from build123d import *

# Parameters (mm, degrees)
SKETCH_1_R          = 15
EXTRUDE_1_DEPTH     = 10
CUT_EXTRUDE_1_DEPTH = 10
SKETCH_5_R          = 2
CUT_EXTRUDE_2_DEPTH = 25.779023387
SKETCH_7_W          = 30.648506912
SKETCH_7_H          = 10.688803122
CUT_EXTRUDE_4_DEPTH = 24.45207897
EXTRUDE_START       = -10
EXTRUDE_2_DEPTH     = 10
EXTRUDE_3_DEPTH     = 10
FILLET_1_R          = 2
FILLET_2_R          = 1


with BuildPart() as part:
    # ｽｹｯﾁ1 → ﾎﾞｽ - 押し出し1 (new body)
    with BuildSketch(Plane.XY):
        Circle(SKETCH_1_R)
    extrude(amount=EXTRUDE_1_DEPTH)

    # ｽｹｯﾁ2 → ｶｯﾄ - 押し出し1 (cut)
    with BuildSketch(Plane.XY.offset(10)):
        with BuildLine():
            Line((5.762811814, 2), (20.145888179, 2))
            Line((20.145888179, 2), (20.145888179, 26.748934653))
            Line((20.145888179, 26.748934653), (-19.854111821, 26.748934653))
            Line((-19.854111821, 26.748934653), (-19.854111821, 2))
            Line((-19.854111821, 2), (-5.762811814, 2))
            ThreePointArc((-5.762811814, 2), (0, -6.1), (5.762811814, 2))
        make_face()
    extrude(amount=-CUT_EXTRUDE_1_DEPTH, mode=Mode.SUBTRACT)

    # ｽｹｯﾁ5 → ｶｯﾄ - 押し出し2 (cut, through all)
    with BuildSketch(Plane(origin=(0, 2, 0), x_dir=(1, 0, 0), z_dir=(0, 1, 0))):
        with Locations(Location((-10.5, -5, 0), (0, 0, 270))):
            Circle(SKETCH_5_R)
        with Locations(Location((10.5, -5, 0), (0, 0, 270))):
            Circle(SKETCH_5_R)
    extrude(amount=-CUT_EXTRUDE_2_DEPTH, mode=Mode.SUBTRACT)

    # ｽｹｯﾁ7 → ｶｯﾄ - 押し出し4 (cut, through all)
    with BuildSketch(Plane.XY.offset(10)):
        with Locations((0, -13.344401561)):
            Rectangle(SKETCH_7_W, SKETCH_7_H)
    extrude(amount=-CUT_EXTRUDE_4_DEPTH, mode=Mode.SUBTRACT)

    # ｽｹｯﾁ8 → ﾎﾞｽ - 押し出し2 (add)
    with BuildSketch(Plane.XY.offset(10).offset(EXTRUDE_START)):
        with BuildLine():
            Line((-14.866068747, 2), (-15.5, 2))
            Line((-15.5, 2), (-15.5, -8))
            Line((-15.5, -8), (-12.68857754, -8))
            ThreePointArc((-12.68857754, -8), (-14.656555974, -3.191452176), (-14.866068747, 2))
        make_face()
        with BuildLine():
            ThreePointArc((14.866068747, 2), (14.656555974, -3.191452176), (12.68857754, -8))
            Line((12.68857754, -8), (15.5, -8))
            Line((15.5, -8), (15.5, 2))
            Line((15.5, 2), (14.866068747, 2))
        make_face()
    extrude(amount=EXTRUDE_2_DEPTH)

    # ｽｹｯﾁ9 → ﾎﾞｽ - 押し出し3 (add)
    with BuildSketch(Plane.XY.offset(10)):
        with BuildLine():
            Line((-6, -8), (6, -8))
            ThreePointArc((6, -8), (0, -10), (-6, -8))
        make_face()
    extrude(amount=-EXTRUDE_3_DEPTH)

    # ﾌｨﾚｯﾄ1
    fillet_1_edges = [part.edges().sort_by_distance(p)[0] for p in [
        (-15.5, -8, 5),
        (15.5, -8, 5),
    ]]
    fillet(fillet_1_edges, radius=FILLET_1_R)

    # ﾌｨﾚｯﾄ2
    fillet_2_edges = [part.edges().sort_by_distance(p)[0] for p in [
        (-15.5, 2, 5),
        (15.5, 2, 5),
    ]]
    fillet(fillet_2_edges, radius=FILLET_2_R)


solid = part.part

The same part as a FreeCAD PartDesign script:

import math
import FreeCAD as App
import Part
import Sketcher

V = App.Vector


def edges_at(feature, points):
    """Names of the edges that pass closest to the given points."""
    edges = feature.Shape.Edges
    near = lambda p: min(range(len(edges)), key=lambda i: edges[i].distToShape(Part.Vertex(*p))[0])
    return sorted({f"Edge{near(p) + 1}" for p in points})

doc = App.newDocument("Part")
body = doc.addObject("PartDesign::Body", "Body")

# Sketch on XY plane
sketch1 = body.newObject("Sketcher::SketchObject", "Sketch")
sketch1.AttachmentSupport = (doc.getObject("XY_Plane"), [""])
sketch1.MapMode = "FlatFace"
sketch1.addGeometry(Part.Circle(V(0, 0, 0), V(0, 0, 1), 15), False)
sketch1.addConstraint(Sketcher.Constraint("Coincident", 0, 3, -1, 1))
sketch1.addConstraint(Sketcher.Constraint("Diameter", 0, 30.0))
pad1 = body.newObject("PartDesign::Pad", "Pad")
pad1.Profile = sketch1
pad1.Length = 10

# Sketch on XY plane
sketch2 = body.newObject("Sketcher::SketchObject", "Sketch001")
sketch2.AttachmentSupport = (doc.getObject("XY_Plane"), [""])
sketch2.MapMode = "FlatFace"
sketch2.AttachmentOffset = App.Placement(V(0, 0, 10), App.Rotation())
sketch2.addGeometry(Part.LineSegment(V(6, 2, 0), V(20, 2, 0)), False)
sketch2.addGeometry(Part.LineSegment(V(20, 2, 0), V(20, 27, 0)), False)
sketch2.addGeometry(Part.LineSegment(V(20, 27, 0), V(-20, 27, 0)), False)
sketch2.addGeometry(Part.LineSegment(V(-20, 27, 0), V(-20, 2, 0)), False)
sketch2.addGeometry(Part.LineSegment(V(-20, 2, 0), V(-6, 2, 0)), False)
sketch2.addGeometry(Part.ArcOfCircle(Part.Circle(V(0, 0, 0), V(0, 0, 1), 6), math.radians(161), math.radians(379)), False)
sketch2.addConstraint(Sketcher.Constraint("Coincident", 0, 2, 1, 1))
sketch2.addConstraint(Sketcher.Constraint("Coincident", 1, 2, 2, 1))
sketch2.addConstraint(Sketcher.Constraint("Coincident", 2, 2, 3, 1))
sketch2.addConstraint(Sketcher.Constraint("Coincident", 3, 2, 4, 1))
sketch2.addConstraint(Sketcher.Constraint("Coincident", 4, 2, 5, 1))
sketch2.addConstraint(Sketcher.Constraint("Coincident", 5, 2, 0, 1))
sketch2.addConstraint(Sketcher.Constraint("Horizontal", 0))
sketch2.addConstraint(Sketcher.Constraint("Vertical", 1))
sketch2.addConstraint(Sketcher.Constraint("Horizontal", 2))
sketch2.addConstraint(Sketcher.Constraint("Vertical", 3))
sketch2.addConstraint(Sketcher.Constraint("Horizontal", 4))
sketch2.addConstraint(Sketcher.Constraint("Coincident", 5, 3, -1, 1))
sketch2.addConstraint(Sketcher.Constraint("Horizontal", 0, 2, 3, 2))
sketch2.addConstraint(Sketcher.Constraint("Radius", 5, 6.1))
sketch2.addConstraint(Sketcher.Constraint("DistanceX", 2, 2, 2, 1, 40.0))
sketch2.addConstraint(Sketcher.Constraint("DistanceY", -1, 1, 0, 2, 2.0))
sketch2.addConstraint(Sketcher.Constraint("DistanceX", 4, 1, 4, 2, 14.0913))
sketch2.addConstraint(Sketcher.Constraint("DistanceY", 1, 1, 1, 2, 24.748935))
pocket1 = body.newObject("PartDesign::Pocket", "Pocket")
pocket1.Profile = sketch2
pocket1.Length = 10

# Sketch on XZ plane
sketch3 = body.newObject("Sketcher::SketchObject", "Sketch002")
sketch3.AttachmentSupport = (doc.getObject("XZ_Plane"), [""])
sketch3.MapMode = "FlatFace"
sketch3.AttachmentOffset = App.Placement(V(0, 0, -2), App.Rotation())
sketch3.addGeometry(Part.Circle(V(-10.5, 5, 0), V(0, 0, 1), 2), False)
sketch3.addGeometry(Part.Circle(V(10.5, 5, 0), V(0, 0, 1), 2), False)
sketch3.addConstraint(Sketcher.Constraint("Equal", 0, 1))
sketch3.addConstraint(Sketcher.Constraint("Symmetric", 0, 3, 1, 3, -2))
sketch3.addConstraint(Sketcher.Constraint("Diameter", 0, 4.0))
sketch3.addConstraint(Sketcher.Constraint("DistanceY", -1, 1, 0, 3, 5.0))
sketch3.addConstraint(Sketcher.Constraint("DistanceX", 0, 3, 1, 3, 21.0))
pocket2 = body.newObject("PartDesign::Pocket", "Pocket001")
pocket2.Profile = sketch3
pocket2.Type = "ThroughAll"
pocket2.Reversed = True

# Sketch on XY plane
sketch4 = body.newObject("Sketcher::SketchObject", "Sketch003")
sketch4.AttachmentSupport = (doc.getObject("XY_Plane"), [""])
sketch4.MapMode = "FlatFace"
sketch4.AttachmentOffset = App.Placement(V(0, 0, 10), App.Rotation())
sketch4.addGeometry(Part.LineSegment(V(-15, -8, 0), V(-15, -19, 0)), False)
sketch4.addGeometry(Part.LineSegment(V(-15, -19, 0), V(15, -19, 0)), False)
sketch4.addGeometry(Part.LineSegment(V(15, -19, 0), V(15, -8, 0)), False)
sketch4.addGeometry(Part.LineSegment(V(15, -8, 0), V(-15, -8, 0)), False)
sketch4.addConstraint(Sketcher.Constraint("Coincident", 0, 2, 1, 1))
sketch4.addConstraint(Sketcher.Constraint("Coincident", 1, 2, 2, 1))
sketch4.addConstraint(Sketcher.Constraint("Coincident", 2, 2, 3, 1))
sketch4.addConstraint(Sketcher.Constraint("Coincident", 3, 2, 0, 1))
sketch4.addConstraint(Sketcher.Constraint("Vertical", 0))
sketch4.addConstraint(Sketcher.Constraint("Horizontal", 1))
sketch4.addConstraint(Sketcher.Constraint("Vertical", 2))
sketch4.addConstraint(Sketcher.Constraint("Horizontal", 3))
sketch4.addConstraint(Sketcher.Constraint("DistanceY", 2, 2, -1, 1, 8.0))
sketch4.addConstraint(Sketcher.Constraint("DistanceX", 1, 1, 1, 2, 30.648507))
sketch4.addConstraint(Sketcher.Constraint("DistanceY", 0, 2, 0, 1, 10.688803))
sketch4.addConstraint(Sketcher.Constraint("DistanceX", 0, 2, -1, 1, 15.324253))
pocket3 = body.newObject("PartDesign::Pocket", "Pocket002")
pocket3.Profile = sketch4
pocket3.Type = "ThroughAll"

# Sketch on XY plane
sketch5 = body.newObject("Sketcher::SketchObject", "Sketch004")
sketch5.AttachmentSupport = (doc.getObject("XY_Plane"), [""])
sketch5.MapMode = "FlatFace"
sketch5.addGeometry(Part.LineSegment(V(-14.9, 2, 0), V(-15.5, 2, 0)), False)
sketch5.addGeometry(Part.LineSegment(V(-15.5, 2, 0), V(-15.5, -8, 0)), False)
sketch5.addGeometry(Part.LineSegment(V(-15.5, -8, 0), V(-12.7, -8, 0)), False)
sketch5.addGeometry(Part.ArcOfCircle(Part.Circle(V(0, 0, 0), V(0, 0, 1), 15), math.radians(172), math.radians(212)), False)
sketch5.addGeometry(Part.ArcOfCircle(Part.Circle(V(0, 0, 0), V(0, 0, 1), 15), math.radians(-32), math.radians(8)), False)
sketch5.addGeometry(Part.LineSegment(V(12.7, -8, 0), V(15.5, -8, 0)), False)
sketch5.addGeometry(Part.LineSegment(V(15.5, -8, 0), V(15.5, 2, 0)), False)
sketch5.addGeometry(Part.LineSegment(V(15.5, 2, 0), V(14.9, 2, 0)), False)
sketch5.addConstraint(Sketcher.Constraint("Coincident", 0, 2, 1, 1))
sketch5.addConstraint(Sketcher.Constraint("Coincident", 1, 2, 2, 1))
sketch5.addConstraint(Sketcher.Constraint("Coincident", 2, 2, 3, 2))
sketch5.addConstraint(Sketcher.Constraint("Coincident", 3, 1, 0, 1))
sketch5.addConstraint(Sketcher.Constraint("Coincident", 4, 1, 5, 1))
sketch5.addConstraint(Sketcher.Constraint("Coincident", 5, 2, 6, 1))
sketch5.addConstraint(Sketcher.Constraint("Coincident", 6, 2, 7, 1))
sketch5.addConstraint(Sketcher.Constraint("Coincident", 7, 2, 4, 2))
sketch5.addConstraint(Sketcher.Constraint("Horizontal", 0))
sketch5.addConstraint(Sketcher.Constraint("Vertical", 1))
sketch5.addConstraint(Sketcher.Constraint("Horizontal", 2))
sketch5.addConstraint(Sketcher.Constraint("Horizontal", 5))
sketch5.addConstraint(Sketcher.Constraint("Vertical", 6))
sketch5.addConstraint(Sketcher.Constraint("Horizontal", 7))
sketch5.addConstraint(Sketcher.Constraint("Coincident", 3, 3, -1, 1))
sketch5.addConstraint(Sketcher.Constraint("Coincident", 4, 3, -1, 1))
sketch5.addConstraint(Sketcher.Constraint("Equal", 3, 4))
sketch5.addConstraint(Sketcher.Constraint("Symmetric", 1, 2, 5, 2, -2))
sketch5.addConstraint(Sketcher.Constraint("Horizontal", 3, 1, 6, 2))
sketch5.addConstraint(Sketcher.Constraint("Radius", 3, 15.0))
sketch5.addConstraint(Sketcher.Constraint("DistanceY", 1, 2, 1, 1, 10.0))
sketch5.addConstraint(Sketcher.Constraint("DistanceY", -1, 1, 0, 2, 2.0))
sketch5.addConstraint(Sketcher.Constraint("DistanceX", 1, 2, 5, 2, 31.0))
pad2 = body.newObject("PartDesign::Pad", "Pad001")
pad2.Profile = sketch5
pad2.Length = 10

# Sketch on XY plane
sketch6 = body.newObject("Sketcher::SketchObject", "Sketch005")
sketch6.AttachmentSupport = (doc.getObject("XY_Plane"), [""])
sketch6.MapMode = "FlatFace"
sketch6.AttachmentOffset = App.Placement(V(0, 0, 10), App.Rotation())
sketch6.addGeometry(Part.LineSegment(V(6, -8, 0), V(-6, -8, 0)), False)
sketch6.addGeometry(Part.ArcOfCircle(Part.Circle(V(0, 0, 0), V(0, 0, 1), 10), math.radians(-127), math.radians(-53)), False)
sketch6.addConstraint(Sketcher.Constraint("Coincident", 0, 1, 1, 2))
sketch6.addConstraint(Sketcher.Constraint("Coincident", 1, 1, 0, 2))
sketch6.addConstraint(Sketcher.Constraint("Horizontal", 0))
sketch6.addConstraint(Sketcher.Constraint("Coincident", 1, 3, -1, 1))
sketch6.addConstraint(Sketcher.Constraint("Radius", 1, 10.0))
sketch6.addConstraint(Sketcher.Constraint("DistanceX", 0, 2, 0, 1, 12.0))
pad3 = body.newObject("PartDesign::Pad", "Pad002")
pad3.Profile = sketch6
pad3.Length = 10
pad3.Reversed = True
doc.recompute()

fillet = body.newObject("PartDesign::Fillet", "Fillet")
fillet.Base = (pad3, edges_at(pad3, [(-15.5, -8, 5), (15.5, -8, 5)]))
fillet.Radius = 2
doc.recompute()

fillet2 = body.newObject("PartDesign::Fillet", "Fillet001")
fillet2.Base = (fillet, edges_at(fillet, [(-15.5, 2, 5), (15.5, 2, 5)]))
fillet2.Radius = 1

doc.recompute()
